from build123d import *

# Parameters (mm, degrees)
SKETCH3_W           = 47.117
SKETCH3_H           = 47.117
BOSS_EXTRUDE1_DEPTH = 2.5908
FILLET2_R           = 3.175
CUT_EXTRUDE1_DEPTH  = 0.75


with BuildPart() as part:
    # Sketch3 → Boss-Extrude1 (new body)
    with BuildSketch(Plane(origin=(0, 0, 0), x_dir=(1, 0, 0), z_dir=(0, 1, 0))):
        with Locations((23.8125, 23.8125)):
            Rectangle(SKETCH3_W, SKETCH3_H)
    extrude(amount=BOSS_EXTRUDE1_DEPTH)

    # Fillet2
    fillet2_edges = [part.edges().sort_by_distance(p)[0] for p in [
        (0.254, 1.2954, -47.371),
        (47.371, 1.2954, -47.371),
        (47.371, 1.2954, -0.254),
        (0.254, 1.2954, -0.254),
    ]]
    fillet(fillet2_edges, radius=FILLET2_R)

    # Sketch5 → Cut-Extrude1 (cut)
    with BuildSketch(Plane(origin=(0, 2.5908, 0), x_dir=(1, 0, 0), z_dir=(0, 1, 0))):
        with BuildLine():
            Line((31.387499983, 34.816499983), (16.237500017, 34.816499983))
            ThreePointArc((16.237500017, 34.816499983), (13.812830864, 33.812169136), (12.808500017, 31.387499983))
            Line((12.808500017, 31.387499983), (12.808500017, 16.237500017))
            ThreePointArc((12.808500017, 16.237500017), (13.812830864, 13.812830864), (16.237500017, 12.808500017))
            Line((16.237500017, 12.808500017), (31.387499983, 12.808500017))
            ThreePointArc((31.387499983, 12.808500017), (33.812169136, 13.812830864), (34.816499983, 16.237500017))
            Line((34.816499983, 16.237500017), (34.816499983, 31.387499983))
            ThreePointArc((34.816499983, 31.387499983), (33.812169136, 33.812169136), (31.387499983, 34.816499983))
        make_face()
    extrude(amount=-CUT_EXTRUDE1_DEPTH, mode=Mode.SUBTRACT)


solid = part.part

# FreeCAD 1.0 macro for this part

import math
import FreeCAD as App
import Part
import Sketcher
from FreeCAD import Vector
Q = App.Units.Quantity


def edges_at(feature, points):
    """Names of the edges that pass closest to the given points."""
    edges = feature.Shape.Edges
    near = lambda p: min(range(len(edges)), key=lambda i: edges[i].distToShape(Part.Vertex(*p))[0])
    return sorted({f"Edge{near(p) + 1}" for p in points})

doc = App.newDocument("Part")
body = doc.addObject("PartDesign::Body", "Body")

# Sketch on XZ plane
sketch1 = doc.addObject("Sketcher::SketchObject", "Sketch")
body.addObject(sketch1)
sketch1.AttachmentSupport = (doc.XZ_Plane, [""])
sketch1.MapMode = "FlatFace"
sketch1.addGeometry([
    Part.LineSegment(Vector(0.254, -47.371, 0), Vector(0.254, -0.254, 0)),
    Part.LineSegment(Vector(0.254, -0.254, 0), Vector(47.371, -0.254, 0)),
    Part.LineSegment(Vector(47.371, -0.254, 0), Vector(47.371, -47.371, 0)),
    Part.LineSegment(Vector(47.371, -47.371, 0), Vector(0.254, -47.371, 0)),
], False)
sketch1.addConstraint([
    Sketcher.Constraint("Coincident", 0, 2, 1, 1),
    Sketcher.Constraint("Coincident", 1, 2, 2, 1),
    Sketcher.Constraint("Coincident", 2, 2, 3, 1),
    Sketcher.Constraint("Coincident", 3, 2, 0, 1),
    Sketcher.Constraint("Vertical", 0),
    Sketcher.Constraint("Horizontal", 1),
    Sketcher.Constraint("Vertical", 2),
    Sketcher.Constraint("Horizontal", 3),
    Sketcher.Constraint("Equal", 3, 0),
    Sketcher.Constraint("DistanceX", 1, 1, 1, 2, Q("1.855 in")),
    Sketcher.Constraint("DistanceX", -1, 1, 0, 2, Q("0.01 in")),
    Sketcher.Constraint("DistanceY", 0, 2, -1, 1, Q("0.01 in")),
])
pad1 = doc.addObject("PartDesign::Pad", "Pad")
body.addObject(pad1)
pad1.Profile = sketch1
pad1.Length = Q("0.102 in")
pad1.Reversed = True
doc.recompute()

fillet = doc.addObject("PartDesign::Fillet", "Fillet")
body.addObject(fillet)
fillet.Base = (pad1, edges_at(pad1, [
    (0.254, 1.295, -47.371),
    (47.371, 1.295, -47.371),
    (47.371, 1.295, -0.254),
    (0.254, 1.295, -0.254),
]))
fillet.Radius = Q("0.125 in")

# Sketch on XZ plane
sketch2 = doc.addObject("Sketcher::SketchObject", "Sketch001")
body.addObject(sketch2)
sketch2.AttachmentSupport = (doc.XZ_Plane, [""])
sketch2.MapMode = "FlatFace"
sketch2.AttachmentOffset = App.Placement(Vector(0, 0, -0.102 * 25.4), App.Rotation())
sketch2.addGeometry([
    Part.LineSegment(Vector(31.3875, -34.8165, 0), Vector(16.2375, -34.8165, 0)),  # 0
    Part.ArcOfCircle(Part.Circle(Vector(16.2375, -31.3875, 0), Vector(0, 0, 1), 3.429), math.radians(180), math.radians(270)),  # 1
    Part.LineSegment(Vector(12.8085, -31.3875, 0), Vector(12.8085, -16.2375, 0)),  # 2
    Part.ArcOfCircle(Part.Circle(Vector(16.2375, -16.2375, 0), Vector(0, 0, 1), 3.429), math.radians(90), math.radians(180)),  # 3
    Part.LineSegment(Vector(16.2375, -12.8085, 0), Vector(31.3875, -12.8085, 0)),  # 4
    Part.ArcOfCircle(Part.Circle(Vector(31.3875, -16.2375, 0), Vector(0, 0, 1), 3.429), math.radians(0), math.radians(90)),  # 5
    Part.LineSegment(Vector(34.8165, -16.2375, 0), Vector(34.8165, -31.3875, 0)),  # 6
    Part.ArcOfCircle(Part.Circle(Vector(31.3875, -31.3875, 0), Vector(0, 0, 1), 3.429), math.radians(-90), math.radians(0)),  # 7
], False)
sketch2.addConstraint([
    Sketcher.Constraint("Tangent", 0, 2, 1, 2),
    Sketcher.Constraint("Tangent", 1, 1, 2, 1),
    Sketcher.Constraint("Tangent", 2, 2, 3, 2),
    Sketcher.Constraint("Tangent", 3, 1, 4, 1),
    Sketcher.Constraint("Tangent", 4, 2, 5, 2),
    Sketcher.Constraint("Tangent", 5, 1, 6, 1),
    Sketcher.Constraint("Tangent", 6, 2, 7, 2),
    Sketcher.Constraint("Tangent", 7, 1, 0, 1),
    Sketcher.Constraint("Horizontal", 0),
    Sketcher.Constraint("Vertical", 2),
    Sketcher.Constraint("Horizontal", 4),
    Sketcher.Constraint("Vertical", 6),
    Sketcher.Constraint("Equal", 1, 3),
    Sketcher.Constraint("Equal", 3, 5),
    Sketcher.Constraint("Equal", 5, 7),
    Sketcher.Constraint("Equal", 4, 2),
    Sketcher.Constraint("Radius", 1, Q("0.135 in")),
    Sketcher.Constraint("DistanceX", 0, 2, 0, 1, 15.15),
    Sketcher.Constraint("DistanceX", -1, 1, 1, 3, 16.2375),
    Sketcher.Constraint("DistanceY", 1, 3, -1, 1, 31.3875),
])
pocket1 = doc.addObject("PartDesign::Pocket", "Pocket")
body.addObject(pocket1)
pocket1.Profile = sketch2
pocket1.Length = 0.75
pocket1.Reversed = True

doc.recompute()
